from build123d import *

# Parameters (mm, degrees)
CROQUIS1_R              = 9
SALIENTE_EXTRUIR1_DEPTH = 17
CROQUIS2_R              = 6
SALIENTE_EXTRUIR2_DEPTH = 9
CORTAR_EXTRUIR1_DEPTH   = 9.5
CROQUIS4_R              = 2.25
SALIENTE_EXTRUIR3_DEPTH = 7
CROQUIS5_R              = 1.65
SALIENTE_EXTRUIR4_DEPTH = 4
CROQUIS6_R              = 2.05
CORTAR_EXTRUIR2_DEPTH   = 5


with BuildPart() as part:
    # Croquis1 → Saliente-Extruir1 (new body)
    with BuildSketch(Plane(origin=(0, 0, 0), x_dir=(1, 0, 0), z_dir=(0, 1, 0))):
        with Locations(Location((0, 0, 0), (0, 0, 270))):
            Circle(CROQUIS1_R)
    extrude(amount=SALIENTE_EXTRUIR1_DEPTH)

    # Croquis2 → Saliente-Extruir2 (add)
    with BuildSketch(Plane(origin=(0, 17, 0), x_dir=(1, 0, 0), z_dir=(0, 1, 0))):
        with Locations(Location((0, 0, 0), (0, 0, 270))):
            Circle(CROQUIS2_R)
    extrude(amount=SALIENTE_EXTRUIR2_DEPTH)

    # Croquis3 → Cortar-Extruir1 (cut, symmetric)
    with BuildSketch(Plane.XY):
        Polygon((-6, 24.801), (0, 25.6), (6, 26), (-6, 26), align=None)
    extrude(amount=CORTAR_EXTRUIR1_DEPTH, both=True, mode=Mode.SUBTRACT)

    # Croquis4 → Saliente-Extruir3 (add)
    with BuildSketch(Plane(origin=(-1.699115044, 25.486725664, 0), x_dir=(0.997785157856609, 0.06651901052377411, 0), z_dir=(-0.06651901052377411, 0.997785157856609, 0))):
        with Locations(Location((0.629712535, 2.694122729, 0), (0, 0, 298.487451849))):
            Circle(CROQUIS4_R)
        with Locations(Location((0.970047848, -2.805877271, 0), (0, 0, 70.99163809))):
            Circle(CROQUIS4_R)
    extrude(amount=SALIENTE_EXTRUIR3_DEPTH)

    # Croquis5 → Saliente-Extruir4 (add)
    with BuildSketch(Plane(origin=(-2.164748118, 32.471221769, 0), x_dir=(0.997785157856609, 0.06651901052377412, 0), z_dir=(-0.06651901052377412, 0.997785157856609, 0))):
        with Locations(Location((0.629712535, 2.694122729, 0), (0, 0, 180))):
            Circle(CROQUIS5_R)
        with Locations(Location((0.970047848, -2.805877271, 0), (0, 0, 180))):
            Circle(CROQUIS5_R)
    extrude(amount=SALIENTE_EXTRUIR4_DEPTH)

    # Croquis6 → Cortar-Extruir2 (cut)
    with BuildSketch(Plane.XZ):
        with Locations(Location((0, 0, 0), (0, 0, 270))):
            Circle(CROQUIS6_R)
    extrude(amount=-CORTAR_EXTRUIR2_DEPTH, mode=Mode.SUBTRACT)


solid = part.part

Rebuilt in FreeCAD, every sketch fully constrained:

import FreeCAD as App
import Part
import Sketcher

V = App.Vector
Q = App.Units.Quantity

doc = App.newDocument("Part")
body = doc.addObject("PartDesign::Body", "Body")

sketch1 = doc.addObject("Sketcher::SketchObject", "Sketch")
body.addObject(sketch1)
sketch1.AttachmentSupport = (doc.XZ_Plane, [""])
sketch1.MapMode = "FlatFace"
sketch1.addGeometry(Part.Circle(V(0, 0, 0), V(0, 0, 1), 9), False)
sketch1.addConstraint(Sketcher.Constraint("Coincident", 0, 3, -1, 1))
sketch1.addConstraint(Sketcher.Constraint("Diameter", 0, Q("18 mm")))
pad1 = doc.addObject("PartDesign::Pad", "Pad")
body.addObject(pad1)
pad1.Profile = sketch1
pad1.Length = 17
pad1.Reversed = True

sketch2 = doc.addObject("Sketcher::SketchObject", "Sketch001")
body.addObject(sketch2)
sketch2.AttachmentSupport = (doc.XZ_Plane, [""])
sketch2.MapMode = "FlatFace"
sketch2.AttachmentOffset = App.Placement(V(0, 0, -17), App.Rotation())
sketch2.addGeometry(Part.Circle(V(0, 0, 0), V(0, 0, 1), 6), False)
sketch2.addConstraint(Sketcher.Constraint("Coincident", 0, 3, -1, 1))
sketch2.addConstraint(Sketcher.Constraint("Diameter", 0, Q("12 mm")))
pad2 = doc.addObject("PartDesign::Pad", "Pad001")
body.addObject(pad2)
pad2.Profile = sketch2
pad2.Length = 9
pad2.Reversed = True

sketch3 = doc.addObject("Sketcher::SketchObject", "Sketch002")
body.addObject(sketch3)
sketch3.AttachmentSupport = (doc.XY_Plane, [""])
sketch3.MapMode = "FlatFace"
sketch3.addGeometry(Part.LineSegment(V(-6, 24.8, 0), V(0, 25.6, 0)), False)
sketch3.addGeometry(Part.LineSegment(V(0, 25.6, 0), V(6, 26, 0)), False)
sketch3.addGeometry(Part.LineSegment(V(6, 26, 0), V(-6, 26, 0)), False)
sketch3.addGeometry(Part.LineSegment(V(-6, 26, 0), V(-6, 24.8, 0)), False)
sketch3.addConstraint(Sketcher.Constraint("Coincident", 0, 2, 1, 1))
sketch3.addConstraint(Sketcher.Constraint("Coincident", 1, 2, 2, 1))
sketch3.addConstraint(Sketcher.Constraint("Coincident", 2, 2, 3, 1))
sketch3.addConstraint(Sketcher.Constraint("Coincident", 3, 2, 0, 1))
sketch3.addConstraint(Sketcher.Constraint("Horizontal", 2))
sketch3.addConstraint(Sketcher.Constraint("Vertical", 3))
sketch3.addConstraint(Sketcher.Constraint("PointOnObject", 0, 2, -2))
sketch3.addConstraint(Sketcher.Constraint("DistanceX", 2, 2, 2, 1, Q("12 mm")))
sketch3.addConstraint(Sketcher.Constraint("DistanceX", -1, 1, 1, 2, Q("6 mm")))
sketch3.addConstraint(Sketcher.Constraint("DistanceY", -1, 1, 1, 2, Q("26 mm")))
sketch3.addConstraint(Sketcher.Constraint("DistanceY", -1, 1, 0, 2, Q("25.6 mm")))
sketch3.addConstraint(Sketcher.Constraint("DistanceY", 3, 2, 3, 1, Q("1.199 mm")))
pocket1 = doc.addObject("PartDesign::Pocket", "Pocket")
body.addObject(pocket1)
pocket1.Profile = sketch3
pocket1.Length = 19
pocket1.Midplane = True

sketch4 = doc.addObject("Sketcher::SketchObject", "Sketch003")
body.addObject(sketch4)
sketch4.Placement = App.Placement(V(-1.699115, 25.486726, 0), App.Rotation(V(0.997785158, 0.066519011, 0), V(0, 0, -1), V(-0.066519011, 0.997785158, 0), "ZXY"))
sketch4.addGeometry(Part.Circle(V(0.6, 2.7, 0), V(0, 0, 1), 2.2), False)
sketch4.addGeometry(Part.Circle(V(1, -2.8, 0), V(0, 0, 1), 2.2), False)
sketch4.addConstraint(Sketcher.Constraint("Equal", 0, 1))
sketch4.addConstraint(Sketcher.Constraint("Diameter", 0, Q("4.5 mm")))
sketch4.addConstraint(Sketcher.Constraint("DistanceY", 1, 3, 0, 3, Q("5.5 mm")))
sketch4.addConstraint(Sketcher.Constraint("DistanceX", -1, 1, 0, 3, Q("0.629713 mm")))
sketch4.addConstraint(Sketcher.Constraint("DistanceY", -1, 1, 0, 3, Q("2.694123 mm")))
sketch4.addConstraint(Sketcher.Constraint("DistanceX", -1, 1, 1, 3, Q("0.970048 mm")))
pad3 = doc.addObject("PartDesign::Pad", "Pad002")
body.addObject(pad3)
pad3.Profile = sketch4
pad3.Length = 7

sketch5 = doc.addObject("Sketcher::SketchObject", "Sketch004")
body.addObject(sketch5)
sketch5.Placement = App.Placement(V(-2.164748, 32.471222, 0), App.Rotation(V(0.997785158, 0.066519011, 0), V(0, 0, -1), V(-0.066519011, 0.997785158, 0), "ZXY"))
sketch5.addGeometry(Part.Circle(V(0.6, 2.7, 0), V(0, 0, 1), 1.6), False)
sketch5.addGeometry(Part.Circle(V(1, -2.8, 0), V(0, 0, 1), 1.6), False)
sketch5.addConstraint(Sketcher.Constraint("Equal", 0, 1))
sketch5.addConstraint(Sketcher.Constraint("Diameter", 0, Q("3.3 mm")))
sketch5.addConstraint(Sketcher.Constraint("DistanceY", 1, 3, 0, 3, Q("5.5 mm")))
sketch5.addConstraint(Sketcher.Constraint("DistanceX", -1, 1, 0, 3, Q("0.629713 mm")))
sketch5.addConstraint(Sketcher.Constraint("DistanceY", -1, 1, 0, 3, Q("2.694123 mm")))
sketch5.addConstraint(Sketcher.Constraint("DistanceX", -1, 1, 1, 3, Q("0.970048 mm")))
pad4 = doc.addObject("PartDesign::Pad", "Pad003")
body.addObject(pad4)
pad4.Profile = sketch5
pad4.Length = 4

sketch6 = doc.addObject("Sketcher::SketchObject", "Sketch005")
body.addObject(sketch6)
sketch6.AttachmentSupport = (doc.XZ_Plane, [""])
sketch6.MapMode = "FlatFace"
sketch6.addGeometry(Part.Circle(V(0, 0, 0), V(0, 0, 1), 2), False)
sketch6.addConstraint(Sketcher.Constraint("Coincident", 0, 3, -1, 1))
sketch6.addConstraint(Sketcher.Constraint("Diameter", 0, Q("4.1 mm")))
pocket2 = doc.addObject("PartDesign::Pocket", "Pocket001")
body.addObject(pocket2)
pocket2.Profile = sketch6
pocket2.Length = 5

doc.recompute()
